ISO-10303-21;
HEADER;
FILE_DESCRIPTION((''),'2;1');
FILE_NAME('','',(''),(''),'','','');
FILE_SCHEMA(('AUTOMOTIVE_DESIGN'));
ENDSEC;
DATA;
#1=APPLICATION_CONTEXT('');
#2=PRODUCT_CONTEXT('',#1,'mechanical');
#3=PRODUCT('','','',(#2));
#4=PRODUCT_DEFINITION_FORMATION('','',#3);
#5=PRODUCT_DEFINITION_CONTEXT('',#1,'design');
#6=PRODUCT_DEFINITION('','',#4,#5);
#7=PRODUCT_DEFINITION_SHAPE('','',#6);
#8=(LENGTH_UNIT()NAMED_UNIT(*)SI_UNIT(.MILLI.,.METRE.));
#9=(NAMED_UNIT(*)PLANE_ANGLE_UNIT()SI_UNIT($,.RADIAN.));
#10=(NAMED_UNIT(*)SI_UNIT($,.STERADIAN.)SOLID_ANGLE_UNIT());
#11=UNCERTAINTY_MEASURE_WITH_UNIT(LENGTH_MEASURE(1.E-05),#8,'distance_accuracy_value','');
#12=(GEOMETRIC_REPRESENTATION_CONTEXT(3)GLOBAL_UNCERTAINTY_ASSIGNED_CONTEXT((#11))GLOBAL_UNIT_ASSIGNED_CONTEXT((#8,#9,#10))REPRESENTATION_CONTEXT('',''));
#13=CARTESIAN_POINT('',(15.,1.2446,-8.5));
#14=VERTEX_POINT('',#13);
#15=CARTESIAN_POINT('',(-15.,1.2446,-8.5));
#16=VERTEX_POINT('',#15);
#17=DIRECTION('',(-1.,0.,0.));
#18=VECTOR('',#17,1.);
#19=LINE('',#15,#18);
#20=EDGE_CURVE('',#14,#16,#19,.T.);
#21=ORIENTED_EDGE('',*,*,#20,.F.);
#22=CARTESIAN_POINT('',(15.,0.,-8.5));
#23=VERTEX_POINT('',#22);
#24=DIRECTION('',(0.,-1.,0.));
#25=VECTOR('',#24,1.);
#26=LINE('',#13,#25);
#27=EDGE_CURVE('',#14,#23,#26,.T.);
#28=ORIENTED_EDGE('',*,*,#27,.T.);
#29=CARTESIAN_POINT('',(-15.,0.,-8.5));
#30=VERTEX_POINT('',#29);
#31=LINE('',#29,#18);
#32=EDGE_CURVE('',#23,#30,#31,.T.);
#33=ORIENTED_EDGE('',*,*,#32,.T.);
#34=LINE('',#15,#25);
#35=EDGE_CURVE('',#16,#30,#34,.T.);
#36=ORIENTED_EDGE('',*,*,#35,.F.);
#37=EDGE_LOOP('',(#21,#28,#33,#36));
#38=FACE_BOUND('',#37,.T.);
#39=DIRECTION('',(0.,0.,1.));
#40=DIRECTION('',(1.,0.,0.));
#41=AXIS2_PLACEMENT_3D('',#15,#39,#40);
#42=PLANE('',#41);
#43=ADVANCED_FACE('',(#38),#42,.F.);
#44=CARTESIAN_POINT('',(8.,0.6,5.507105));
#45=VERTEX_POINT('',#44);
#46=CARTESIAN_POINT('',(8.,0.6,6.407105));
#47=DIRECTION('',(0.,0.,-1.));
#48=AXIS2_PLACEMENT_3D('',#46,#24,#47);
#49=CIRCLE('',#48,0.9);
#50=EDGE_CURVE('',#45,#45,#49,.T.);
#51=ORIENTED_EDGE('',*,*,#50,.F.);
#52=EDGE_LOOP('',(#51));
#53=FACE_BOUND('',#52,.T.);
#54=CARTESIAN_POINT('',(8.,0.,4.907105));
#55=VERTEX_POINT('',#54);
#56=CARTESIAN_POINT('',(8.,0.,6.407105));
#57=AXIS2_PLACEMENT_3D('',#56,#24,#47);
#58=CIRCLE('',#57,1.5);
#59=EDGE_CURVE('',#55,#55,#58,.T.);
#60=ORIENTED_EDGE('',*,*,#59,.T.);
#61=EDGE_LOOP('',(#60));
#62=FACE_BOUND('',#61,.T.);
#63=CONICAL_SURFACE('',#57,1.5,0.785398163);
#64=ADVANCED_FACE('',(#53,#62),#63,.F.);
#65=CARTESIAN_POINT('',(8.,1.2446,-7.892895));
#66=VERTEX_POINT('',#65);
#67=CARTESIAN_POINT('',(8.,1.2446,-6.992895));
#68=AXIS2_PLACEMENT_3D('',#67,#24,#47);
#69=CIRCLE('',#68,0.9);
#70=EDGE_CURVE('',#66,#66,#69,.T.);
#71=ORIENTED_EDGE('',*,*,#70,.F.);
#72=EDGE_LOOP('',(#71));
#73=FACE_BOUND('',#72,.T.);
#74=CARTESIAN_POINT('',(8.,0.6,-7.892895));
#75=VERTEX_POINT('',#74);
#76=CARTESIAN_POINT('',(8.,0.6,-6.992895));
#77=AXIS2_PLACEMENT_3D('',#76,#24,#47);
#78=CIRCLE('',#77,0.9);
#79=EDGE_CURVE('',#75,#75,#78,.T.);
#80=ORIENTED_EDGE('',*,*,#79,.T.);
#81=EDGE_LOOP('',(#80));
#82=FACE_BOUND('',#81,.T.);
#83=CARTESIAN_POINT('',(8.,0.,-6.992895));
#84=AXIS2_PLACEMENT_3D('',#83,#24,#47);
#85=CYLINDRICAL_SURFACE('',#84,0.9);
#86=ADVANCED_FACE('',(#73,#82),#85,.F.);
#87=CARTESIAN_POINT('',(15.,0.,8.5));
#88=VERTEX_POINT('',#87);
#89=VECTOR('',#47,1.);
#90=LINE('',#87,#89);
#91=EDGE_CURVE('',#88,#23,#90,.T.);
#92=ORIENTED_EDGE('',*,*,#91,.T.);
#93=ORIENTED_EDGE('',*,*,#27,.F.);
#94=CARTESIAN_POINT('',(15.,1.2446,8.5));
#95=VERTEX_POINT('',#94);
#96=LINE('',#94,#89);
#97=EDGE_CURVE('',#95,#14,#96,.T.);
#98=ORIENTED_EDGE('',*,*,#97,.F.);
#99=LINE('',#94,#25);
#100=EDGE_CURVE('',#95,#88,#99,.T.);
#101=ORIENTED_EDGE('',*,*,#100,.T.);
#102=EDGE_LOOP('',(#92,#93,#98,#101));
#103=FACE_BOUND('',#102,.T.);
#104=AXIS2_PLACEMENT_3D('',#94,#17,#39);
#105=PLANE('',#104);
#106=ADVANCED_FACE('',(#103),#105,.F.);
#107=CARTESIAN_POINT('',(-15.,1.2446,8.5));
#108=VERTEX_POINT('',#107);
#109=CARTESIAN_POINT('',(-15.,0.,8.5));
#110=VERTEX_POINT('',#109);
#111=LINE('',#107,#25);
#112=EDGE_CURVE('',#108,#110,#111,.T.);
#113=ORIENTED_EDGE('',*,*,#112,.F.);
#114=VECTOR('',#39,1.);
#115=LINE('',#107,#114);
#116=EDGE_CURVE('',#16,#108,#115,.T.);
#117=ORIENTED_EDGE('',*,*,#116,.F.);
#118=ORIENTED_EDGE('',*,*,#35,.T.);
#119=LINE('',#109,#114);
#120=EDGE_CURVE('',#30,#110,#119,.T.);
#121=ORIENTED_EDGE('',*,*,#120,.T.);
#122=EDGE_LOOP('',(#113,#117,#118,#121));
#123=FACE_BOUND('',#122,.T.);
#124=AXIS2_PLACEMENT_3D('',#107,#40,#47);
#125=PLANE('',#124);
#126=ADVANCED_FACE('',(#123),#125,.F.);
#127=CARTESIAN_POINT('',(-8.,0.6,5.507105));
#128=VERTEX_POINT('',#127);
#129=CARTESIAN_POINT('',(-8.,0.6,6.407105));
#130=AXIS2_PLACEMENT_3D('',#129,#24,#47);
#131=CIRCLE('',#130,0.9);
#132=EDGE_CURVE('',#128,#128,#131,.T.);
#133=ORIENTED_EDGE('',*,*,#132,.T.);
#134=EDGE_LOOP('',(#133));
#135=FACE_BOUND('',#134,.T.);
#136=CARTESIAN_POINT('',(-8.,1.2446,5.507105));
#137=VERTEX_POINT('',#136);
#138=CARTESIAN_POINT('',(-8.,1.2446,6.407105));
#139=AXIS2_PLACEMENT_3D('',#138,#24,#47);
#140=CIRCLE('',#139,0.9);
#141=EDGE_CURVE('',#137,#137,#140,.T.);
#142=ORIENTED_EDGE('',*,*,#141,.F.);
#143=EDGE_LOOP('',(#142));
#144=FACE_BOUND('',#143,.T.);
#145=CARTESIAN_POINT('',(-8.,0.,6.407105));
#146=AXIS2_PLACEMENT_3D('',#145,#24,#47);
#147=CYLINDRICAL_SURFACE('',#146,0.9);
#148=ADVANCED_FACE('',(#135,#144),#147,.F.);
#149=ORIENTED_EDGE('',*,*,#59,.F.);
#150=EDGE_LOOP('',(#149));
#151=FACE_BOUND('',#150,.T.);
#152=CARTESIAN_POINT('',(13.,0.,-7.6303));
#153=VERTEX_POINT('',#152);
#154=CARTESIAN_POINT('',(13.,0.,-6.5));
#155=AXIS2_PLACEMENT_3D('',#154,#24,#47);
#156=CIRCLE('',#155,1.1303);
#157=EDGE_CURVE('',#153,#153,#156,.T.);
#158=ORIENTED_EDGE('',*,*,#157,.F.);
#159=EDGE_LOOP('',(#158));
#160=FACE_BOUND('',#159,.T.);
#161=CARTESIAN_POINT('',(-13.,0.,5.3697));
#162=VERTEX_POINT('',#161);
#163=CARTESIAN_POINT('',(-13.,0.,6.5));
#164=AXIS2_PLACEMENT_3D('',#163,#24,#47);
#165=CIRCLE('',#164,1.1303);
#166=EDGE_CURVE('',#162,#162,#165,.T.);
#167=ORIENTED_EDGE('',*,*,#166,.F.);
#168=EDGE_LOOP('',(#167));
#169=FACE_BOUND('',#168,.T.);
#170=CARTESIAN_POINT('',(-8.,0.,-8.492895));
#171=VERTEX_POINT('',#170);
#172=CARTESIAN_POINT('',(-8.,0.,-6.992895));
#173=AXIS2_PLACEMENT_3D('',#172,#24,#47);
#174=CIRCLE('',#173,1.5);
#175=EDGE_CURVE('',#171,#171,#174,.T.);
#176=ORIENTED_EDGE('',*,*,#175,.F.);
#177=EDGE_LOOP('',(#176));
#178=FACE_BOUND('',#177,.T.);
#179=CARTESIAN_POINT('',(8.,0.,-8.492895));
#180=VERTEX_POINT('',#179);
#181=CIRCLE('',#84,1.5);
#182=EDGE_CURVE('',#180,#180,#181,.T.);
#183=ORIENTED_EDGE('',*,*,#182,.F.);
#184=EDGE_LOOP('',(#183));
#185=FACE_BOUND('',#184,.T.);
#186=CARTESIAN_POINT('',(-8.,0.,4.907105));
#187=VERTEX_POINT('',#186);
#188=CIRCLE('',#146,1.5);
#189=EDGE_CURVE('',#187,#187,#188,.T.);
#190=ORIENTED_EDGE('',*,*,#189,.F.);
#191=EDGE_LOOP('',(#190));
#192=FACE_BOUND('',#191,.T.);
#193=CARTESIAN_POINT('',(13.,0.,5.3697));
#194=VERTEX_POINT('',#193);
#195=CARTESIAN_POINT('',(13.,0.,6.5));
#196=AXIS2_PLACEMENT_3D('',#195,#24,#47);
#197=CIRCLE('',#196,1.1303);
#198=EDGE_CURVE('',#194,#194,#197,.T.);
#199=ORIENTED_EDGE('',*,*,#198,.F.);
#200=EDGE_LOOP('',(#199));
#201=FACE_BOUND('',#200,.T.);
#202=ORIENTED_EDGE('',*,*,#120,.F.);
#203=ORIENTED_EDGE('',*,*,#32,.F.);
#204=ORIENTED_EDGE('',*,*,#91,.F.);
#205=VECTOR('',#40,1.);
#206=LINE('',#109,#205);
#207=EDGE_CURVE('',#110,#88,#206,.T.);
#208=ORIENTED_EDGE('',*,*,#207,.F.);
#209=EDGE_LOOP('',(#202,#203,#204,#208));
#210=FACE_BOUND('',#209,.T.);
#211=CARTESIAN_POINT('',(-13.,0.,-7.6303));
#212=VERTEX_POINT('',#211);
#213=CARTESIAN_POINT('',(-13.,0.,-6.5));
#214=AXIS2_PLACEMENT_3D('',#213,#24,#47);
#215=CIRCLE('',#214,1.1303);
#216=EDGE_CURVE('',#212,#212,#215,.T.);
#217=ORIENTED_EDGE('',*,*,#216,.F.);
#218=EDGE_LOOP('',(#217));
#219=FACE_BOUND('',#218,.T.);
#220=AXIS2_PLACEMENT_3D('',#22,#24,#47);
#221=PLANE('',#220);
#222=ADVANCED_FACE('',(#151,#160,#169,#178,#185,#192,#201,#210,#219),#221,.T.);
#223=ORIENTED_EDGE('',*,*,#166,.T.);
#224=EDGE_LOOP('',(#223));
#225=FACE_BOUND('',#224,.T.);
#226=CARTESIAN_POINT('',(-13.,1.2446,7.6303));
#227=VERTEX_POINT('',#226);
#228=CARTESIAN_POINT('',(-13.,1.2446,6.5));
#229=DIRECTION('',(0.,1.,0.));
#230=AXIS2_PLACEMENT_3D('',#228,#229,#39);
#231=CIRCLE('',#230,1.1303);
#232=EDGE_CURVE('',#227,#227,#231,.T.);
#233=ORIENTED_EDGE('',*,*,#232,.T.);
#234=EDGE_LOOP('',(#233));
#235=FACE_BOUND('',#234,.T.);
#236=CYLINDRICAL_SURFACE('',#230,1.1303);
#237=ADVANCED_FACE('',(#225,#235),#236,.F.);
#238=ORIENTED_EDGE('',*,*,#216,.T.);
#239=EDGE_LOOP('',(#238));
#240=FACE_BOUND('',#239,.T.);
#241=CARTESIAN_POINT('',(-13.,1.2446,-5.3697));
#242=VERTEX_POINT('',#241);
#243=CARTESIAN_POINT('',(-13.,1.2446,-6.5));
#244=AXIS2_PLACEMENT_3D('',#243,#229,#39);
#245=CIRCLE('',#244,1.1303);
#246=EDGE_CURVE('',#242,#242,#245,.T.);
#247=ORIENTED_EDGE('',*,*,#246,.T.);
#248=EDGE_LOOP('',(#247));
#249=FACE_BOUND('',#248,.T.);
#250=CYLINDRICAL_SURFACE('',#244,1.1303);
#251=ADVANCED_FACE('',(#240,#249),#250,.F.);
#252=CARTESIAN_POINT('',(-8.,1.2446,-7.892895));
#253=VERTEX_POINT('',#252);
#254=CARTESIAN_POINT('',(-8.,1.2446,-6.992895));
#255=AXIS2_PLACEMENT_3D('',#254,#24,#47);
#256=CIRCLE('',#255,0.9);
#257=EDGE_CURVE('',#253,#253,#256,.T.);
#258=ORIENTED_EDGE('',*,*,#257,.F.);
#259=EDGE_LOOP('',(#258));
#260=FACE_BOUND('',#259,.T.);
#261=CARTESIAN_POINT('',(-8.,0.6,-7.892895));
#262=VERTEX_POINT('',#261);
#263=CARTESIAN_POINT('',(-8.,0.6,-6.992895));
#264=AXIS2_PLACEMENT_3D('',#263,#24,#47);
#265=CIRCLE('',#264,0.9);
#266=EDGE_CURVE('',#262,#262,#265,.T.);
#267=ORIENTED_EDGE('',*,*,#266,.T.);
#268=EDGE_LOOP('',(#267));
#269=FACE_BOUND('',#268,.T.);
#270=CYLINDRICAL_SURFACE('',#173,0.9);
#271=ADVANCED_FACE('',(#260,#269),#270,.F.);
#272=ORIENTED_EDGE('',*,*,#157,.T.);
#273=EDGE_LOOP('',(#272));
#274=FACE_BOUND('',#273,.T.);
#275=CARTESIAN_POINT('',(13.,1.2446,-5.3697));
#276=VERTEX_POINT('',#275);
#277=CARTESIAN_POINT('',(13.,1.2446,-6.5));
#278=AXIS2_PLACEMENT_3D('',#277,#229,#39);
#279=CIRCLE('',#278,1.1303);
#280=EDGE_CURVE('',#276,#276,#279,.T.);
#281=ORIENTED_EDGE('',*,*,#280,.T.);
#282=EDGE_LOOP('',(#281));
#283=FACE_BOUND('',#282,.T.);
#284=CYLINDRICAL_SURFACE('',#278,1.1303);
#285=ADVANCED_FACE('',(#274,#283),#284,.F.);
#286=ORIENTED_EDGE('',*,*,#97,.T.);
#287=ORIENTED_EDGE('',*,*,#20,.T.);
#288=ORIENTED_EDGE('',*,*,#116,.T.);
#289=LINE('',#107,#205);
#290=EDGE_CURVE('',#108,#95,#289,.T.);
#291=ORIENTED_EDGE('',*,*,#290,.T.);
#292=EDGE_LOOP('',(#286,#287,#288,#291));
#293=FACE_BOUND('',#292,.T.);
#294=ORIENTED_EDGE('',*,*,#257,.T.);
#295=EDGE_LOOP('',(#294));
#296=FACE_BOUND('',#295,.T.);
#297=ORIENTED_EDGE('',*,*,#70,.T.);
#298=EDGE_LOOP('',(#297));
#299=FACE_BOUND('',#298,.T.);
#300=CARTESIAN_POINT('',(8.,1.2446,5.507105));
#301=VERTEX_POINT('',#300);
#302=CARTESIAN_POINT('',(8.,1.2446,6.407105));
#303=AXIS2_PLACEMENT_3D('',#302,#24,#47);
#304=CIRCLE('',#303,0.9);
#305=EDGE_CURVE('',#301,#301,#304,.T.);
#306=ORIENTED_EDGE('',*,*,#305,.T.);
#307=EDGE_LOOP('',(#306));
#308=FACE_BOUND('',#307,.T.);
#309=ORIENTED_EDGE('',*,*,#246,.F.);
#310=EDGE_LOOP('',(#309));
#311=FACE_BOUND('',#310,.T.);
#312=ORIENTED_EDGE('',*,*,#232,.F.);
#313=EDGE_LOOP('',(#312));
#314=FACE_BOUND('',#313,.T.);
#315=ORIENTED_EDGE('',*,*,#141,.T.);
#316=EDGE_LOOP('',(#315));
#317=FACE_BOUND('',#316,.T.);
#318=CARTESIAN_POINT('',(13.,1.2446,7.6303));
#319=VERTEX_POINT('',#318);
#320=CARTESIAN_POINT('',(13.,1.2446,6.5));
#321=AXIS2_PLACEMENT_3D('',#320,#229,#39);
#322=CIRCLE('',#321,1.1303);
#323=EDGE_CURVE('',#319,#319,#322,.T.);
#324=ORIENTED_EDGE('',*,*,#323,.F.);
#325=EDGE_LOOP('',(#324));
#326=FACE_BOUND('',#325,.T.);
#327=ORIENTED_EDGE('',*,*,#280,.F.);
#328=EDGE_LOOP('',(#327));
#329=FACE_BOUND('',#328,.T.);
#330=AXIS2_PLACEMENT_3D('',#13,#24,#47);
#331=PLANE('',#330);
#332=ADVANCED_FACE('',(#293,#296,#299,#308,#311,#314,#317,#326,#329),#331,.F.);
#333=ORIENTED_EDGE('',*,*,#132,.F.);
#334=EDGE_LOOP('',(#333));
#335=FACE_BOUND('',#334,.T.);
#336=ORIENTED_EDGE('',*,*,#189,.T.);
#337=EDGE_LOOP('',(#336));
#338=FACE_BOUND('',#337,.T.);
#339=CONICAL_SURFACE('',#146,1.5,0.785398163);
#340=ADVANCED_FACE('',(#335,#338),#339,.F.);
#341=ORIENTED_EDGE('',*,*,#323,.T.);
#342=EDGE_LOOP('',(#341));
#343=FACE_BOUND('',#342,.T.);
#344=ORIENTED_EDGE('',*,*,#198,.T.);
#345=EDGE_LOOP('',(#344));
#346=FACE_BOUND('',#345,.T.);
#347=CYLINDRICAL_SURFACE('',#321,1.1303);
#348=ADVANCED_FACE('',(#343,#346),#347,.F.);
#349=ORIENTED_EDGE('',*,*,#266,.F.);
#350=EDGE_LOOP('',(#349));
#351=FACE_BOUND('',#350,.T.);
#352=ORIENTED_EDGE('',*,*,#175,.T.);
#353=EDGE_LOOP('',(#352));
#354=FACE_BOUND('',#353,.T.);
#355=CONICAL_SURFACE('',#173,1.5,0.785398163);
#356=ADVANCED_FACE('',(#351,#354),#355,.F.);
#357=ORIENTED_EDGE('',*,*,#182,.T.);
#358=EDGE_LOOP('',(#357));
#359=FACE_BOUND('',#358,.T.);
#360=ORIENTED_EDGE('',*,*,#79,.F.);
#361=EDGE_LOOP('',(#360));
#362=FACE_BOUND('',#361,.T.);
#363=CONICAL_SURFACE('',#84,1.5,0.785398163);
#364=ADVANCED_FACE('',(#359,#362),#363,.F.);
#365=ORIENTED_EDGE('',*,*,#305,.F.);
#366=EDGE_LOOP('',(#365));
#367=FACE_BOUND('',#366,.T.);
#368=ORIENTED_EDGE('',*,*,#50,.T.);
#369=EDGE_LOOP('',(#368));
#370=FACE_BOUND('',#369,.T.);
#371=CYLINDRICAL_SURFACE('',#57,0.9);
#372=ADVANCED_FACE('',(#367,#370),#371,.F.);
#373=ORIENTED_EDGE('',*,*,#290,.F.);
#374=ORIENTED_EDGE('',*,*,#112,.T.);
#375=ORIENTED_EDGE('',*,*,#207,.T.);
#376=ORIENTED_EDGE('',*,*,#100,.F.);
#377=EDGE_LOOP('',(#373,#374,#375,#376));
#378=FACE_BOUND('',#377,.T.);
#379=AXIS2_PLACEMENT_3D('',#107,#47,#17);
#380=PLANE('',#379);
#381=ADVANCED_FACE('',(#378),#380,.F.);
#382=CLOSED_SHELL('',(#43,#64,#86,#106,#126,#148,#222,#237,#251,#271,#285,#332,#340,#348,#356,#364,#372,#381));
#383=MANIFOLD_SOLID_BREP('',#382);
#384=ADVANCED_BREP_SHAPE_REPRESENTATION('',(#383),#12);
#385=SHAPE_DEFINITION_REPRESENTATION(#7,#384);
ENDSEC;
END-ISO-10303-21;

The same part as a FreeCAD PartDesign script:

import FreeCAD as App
import Part
import Sketcher
from FreeCAD import Vector
Q = App.Units.Quantity

doc = App.newDocument("Part")
body = doc.addObject("PartDesign::Body", "Body")

# Sketch on XZ plane
sketch1 = body.newObject("Sketcher::SketchObject", "Sketch")
sketch1.AttachmentSupport = (doc.getObject("XZ_Plane"), [""])
sketch1.MapMode = "FlatFace"
sketch1.addGeometry(Part.LineSegment(Vector(-15, -8.5, 0), Vector(-15, 8.5, 0)), False)
sketch1.addGeometry(Part.LineSegment(Vector(-15, 8.5, 0), Vector(15, 8.5, 0)), False)
sketch1.addGeometry(Part.LineSegment(Vector(15, 8.5, 0), Vector(15, -8.5, 0)), False)
sketch1.addGeometry(Part.LineSegment(Vector(15, -8.5, 0), Vector(-15, -8.5, 0)), False)
sketch1.addConstraint(Sketcher.Constraint("Coincident", 0, 2, 1, 1))
sketch1.addConstraint(Sketcher.Constraint("Coincident", 1, 2, 2, 1))
sketch1.addConstraint(Sketcher.Constraint("Coincident", 2, 2, 3, 1))
sketch1.addConstraint(Sketcher.Constraint("Coincident", 3, 2, 0, 1))
sketch1.addConstraint(Sketcher.Constraint("Vertical", 0))
sketch1.addConstraint(Sketcher.Constraint("Horizontal", 1))
sketch1.addConstraint(Sketcher.Constraint("Vertical", 2))
sketch1.addConstraint(Sketcher.Constraint("Horizontal", 3))
sketch1.addConstraint(Sketcher.Constraint("Symmetric", 0, 2, 2, 2, -1, 1))
sketch1.addConstraint(Sketcher.Constraint("DistanceX", 1, 1, 1, 2, Q("30 mm")))
sketch1.addConstraint(Sketcher.Constraint("DistanceY", 0, 1, 0, 2, Q("17 mm")))
pad1 = body.newObject("PartDesign::Pad", "Pad")
pad1.Profile = sketch1
pad1.Length = 1.2446
pad1.Reversed = True

# Sketch on YZ plane
sketch2 = body.newObject("Sketcher::SketchObject", "Sketch001")
sketch2.AttachmentSupport = (doc.getObject("YZ_Plane"), [""])
sketch2.MapMode = "FlatFace"
sketch2.AttachmentOffset = App.Placement(Vector(0, 0, -8), App.Rotation())
sketch2.addGeometry(Part.LineSegment(Vector(1.2446, 6.407105, 0), Vector(0, 6.407105, 0)), False)
sketch2.addGeometry(Part.LineSegment(Vector(0, 6.407105, 0), Vector(0, 4.907105, 0)), False)
sketch2.addGeometry(Part.LineSegment(Vector(0, 4.907105, 0), Vector(0.6, 5.507105, 0)), False)
sketch2.addGeometry(Part.LineSegment(Vector(0.6, 5.507105, 0), Vector(1.2446, 5.507105, 0)), False)
sketch2.addGeometry(Part.LineSegment(Vector(1.2446, 5.507105, 0), Vector(1.2446, 6.407105, 0)), False)
sketch2.addGeometry(Part.LineSegment(Vector(0, 6.407105, 0), Vector(1.2446, 6.407105, 0)), True)  # axis
sketch2.addConstraint(Sketcher.Constraint("Coincident", 0, 2, 1, 1))
sketch2.addConstraint(Sketcher.Constraint("Coincident", 1, 2, 2, 1))
sketch2.addConstraint(Sketcher.Constraint("Coincident", 2, 2, 3, 1))
sketch2.addConstraint(Sketcher.Constraint("Coincident", 3, 2, 4, 1))
sketch2.addConstraint(Sketcher.Constraint("Coincident", 4, 2, 0, 1))
sketch2.addConstraint(Sketcher.Constraint("Horizontal", 0))
sketch2.addConstraint(Sketcher.Constraint("Vertical", 1))
sketch2.addConstraint(Sketcher.Constraint("Horizontal", 3))
sketch2.addConstraint(Sketcher.Constraint("Vertical", 4))
sketch2.addConstraint(Sketcher.Constraint("Horizontal", 5))
sketch2.addConstraint(Sketcher.Constraint("Coincident", 5, 1, 0, 2))
sketch2.addConstraint(Sketcher.Constraint("PointOnObject", 0, 2, -2))
sketch2.addConstraint(Sketcher.Constraint("Vertical", 3, 2, 5, 2))
sketch2.addConstraint(Sketcher.Constraint("Angle", 2, Q("45 deg")))
sketch2.addConstraint(Sketcher.Constraint("DistanceY", 1, 2, 1, 1, Q("1.5 mm")))
sketch2.addConstraint(Sketcher.Constraint("DistanceY", 4, 1, 4, 2, Q("0.9 mm")))
sketch2.addConstraint(Sketcher.Constraint("DistanceX", 0, 2, 0, 1, Q("1.2446 mm")))
sketch2.addConstraint(Sketcher.Constraint("DistanceY", -1, 1, 0, 2, Q("6.407105 mm")))
groove = body.newObject("PartDesign::Groove", "Groove")
groove.Profile = sketch2
groove.ReferenceAxis = (sketch2, ["Axis0"])
groove.Angle = 360
doc.recompute()

linearpattern = body.newObject("PartDesign::LinearPattern", "LinearPattern")
linearpattern.Originals = [groove]
linearpattern.Direction = (doc.getObject("X_Axis"), [""])
linearpattern.Mode = "offset"
linearpattern.Offset = 16
linearpattern.Occurrences = 2
body.Tip = linearpattern
doc.recompute()

linearpattern2 = body.newObject("PartDesign::LinearPattern", "LinearPattern001")
linearpattern2.Originals = [groove]
linearpattern2.Direction = (doc.getObject("Z_Axis"), [""])
linearpattern2.Mode = "offset"
linearpattern2.Offset = 13.4
linearpattern2.Occurrences = 2
linearpattern2.Reversed = True
body.Tip = linearpattern2
doc.recompute()

datumline = body.newObject("PartDesign::Line", "DatumLine")
datumline.Placement = App.Placement(Vector(0, 0, 0), App.Rotation(Vector(0, 0, 1), Vector(0.766647967, 0, -0.642067672)))
linearpattern3 = body.newObject("PartDesign::LinearPattern", "LinearPattern002")
linearpattern3.Originals = [groove]
linearpattern3.Direction = (datumline, [""])
linearpattern3.Mode = "offset"
linearpattern3.Offset = 20.870074
linearpattern3.Occurrences = 2
body.Tip = linearpattern3

# Sketch on XZ plane
sketch3 = body.newObject("Sketcher::SketchObject", "Sketch002")
sketch3.AttachmentSupport = (doc.getObject("XZ_Plane"), [""])
sketch3.MapMode = "FlatFace"
sketch3.AttachmentOffset = App.Placement(Vector(0, 0, -1.2446), App.Rotation())
sketch3.addGeometry(Part.Circle(Vector(-13, -6.5, 0), Vector(0, 0, 1), 1.1303), False)
sketch3.addGeometry(Part.Circle(Vector(-13, 6.5, 0), Vector(0, 0, 1), 1.1303), False)
sketch3.addGeometry(Part.Circle(Vector(13, -6.5, 0), Vector(0, 0, 1), 1.1303), False)
sketch3.addGeometry(Part.Circle(Vector(13, 6.5, 0), Vector(0, 0, 1), 1.1303), False)
sketch3.addConstraint(Sketcher.Constraint("Equal", 0, 1))
sketch3.addConstraint(Sketcher.Constraint("Equal", 1, 2))
sketch3.addConstraint(Sketcher.Constraint("Equal", 2, 3))
sketch3.addConstraint(Sketcher.Constraint("Symmetric", 1, 3, 2, 3, -1, 1))
sketch3.addConstraint(Sketcher.Constraint("Symmetric", 0, 3, 3, 3, -1, 1))
sketch3.addConstraint(Sketcher.Constraint("Symmetric", 0, 3, 2, 3, -2))
sketch3.addConstraint(Sketcher.Constraint("DistanceX", 0, 3, -1, 1, Q("13 mm")))
sketch3.addConstraint(Sketcher.Constraint("DistanceY", 0, 3, 1, 3, Q("13 mm")))
sketch3.addConstraint(Sketcher.Constraint("Diameter", 0, Q("2.2606 mm")))
doc.recompute()
hole = body.newObject("PartDesign::Hole", "Hole")
hole.Profile = sketch3
hole.ThreadType = "None"
hole.Diameter = 2.2606
hole.DepthType = "Dimension"
hole.Depth = 2.032
hole.DrillPoint = "Angled"
hole.DrillPointAngle = 118
hole.Reversed = True

doc.recompute()
